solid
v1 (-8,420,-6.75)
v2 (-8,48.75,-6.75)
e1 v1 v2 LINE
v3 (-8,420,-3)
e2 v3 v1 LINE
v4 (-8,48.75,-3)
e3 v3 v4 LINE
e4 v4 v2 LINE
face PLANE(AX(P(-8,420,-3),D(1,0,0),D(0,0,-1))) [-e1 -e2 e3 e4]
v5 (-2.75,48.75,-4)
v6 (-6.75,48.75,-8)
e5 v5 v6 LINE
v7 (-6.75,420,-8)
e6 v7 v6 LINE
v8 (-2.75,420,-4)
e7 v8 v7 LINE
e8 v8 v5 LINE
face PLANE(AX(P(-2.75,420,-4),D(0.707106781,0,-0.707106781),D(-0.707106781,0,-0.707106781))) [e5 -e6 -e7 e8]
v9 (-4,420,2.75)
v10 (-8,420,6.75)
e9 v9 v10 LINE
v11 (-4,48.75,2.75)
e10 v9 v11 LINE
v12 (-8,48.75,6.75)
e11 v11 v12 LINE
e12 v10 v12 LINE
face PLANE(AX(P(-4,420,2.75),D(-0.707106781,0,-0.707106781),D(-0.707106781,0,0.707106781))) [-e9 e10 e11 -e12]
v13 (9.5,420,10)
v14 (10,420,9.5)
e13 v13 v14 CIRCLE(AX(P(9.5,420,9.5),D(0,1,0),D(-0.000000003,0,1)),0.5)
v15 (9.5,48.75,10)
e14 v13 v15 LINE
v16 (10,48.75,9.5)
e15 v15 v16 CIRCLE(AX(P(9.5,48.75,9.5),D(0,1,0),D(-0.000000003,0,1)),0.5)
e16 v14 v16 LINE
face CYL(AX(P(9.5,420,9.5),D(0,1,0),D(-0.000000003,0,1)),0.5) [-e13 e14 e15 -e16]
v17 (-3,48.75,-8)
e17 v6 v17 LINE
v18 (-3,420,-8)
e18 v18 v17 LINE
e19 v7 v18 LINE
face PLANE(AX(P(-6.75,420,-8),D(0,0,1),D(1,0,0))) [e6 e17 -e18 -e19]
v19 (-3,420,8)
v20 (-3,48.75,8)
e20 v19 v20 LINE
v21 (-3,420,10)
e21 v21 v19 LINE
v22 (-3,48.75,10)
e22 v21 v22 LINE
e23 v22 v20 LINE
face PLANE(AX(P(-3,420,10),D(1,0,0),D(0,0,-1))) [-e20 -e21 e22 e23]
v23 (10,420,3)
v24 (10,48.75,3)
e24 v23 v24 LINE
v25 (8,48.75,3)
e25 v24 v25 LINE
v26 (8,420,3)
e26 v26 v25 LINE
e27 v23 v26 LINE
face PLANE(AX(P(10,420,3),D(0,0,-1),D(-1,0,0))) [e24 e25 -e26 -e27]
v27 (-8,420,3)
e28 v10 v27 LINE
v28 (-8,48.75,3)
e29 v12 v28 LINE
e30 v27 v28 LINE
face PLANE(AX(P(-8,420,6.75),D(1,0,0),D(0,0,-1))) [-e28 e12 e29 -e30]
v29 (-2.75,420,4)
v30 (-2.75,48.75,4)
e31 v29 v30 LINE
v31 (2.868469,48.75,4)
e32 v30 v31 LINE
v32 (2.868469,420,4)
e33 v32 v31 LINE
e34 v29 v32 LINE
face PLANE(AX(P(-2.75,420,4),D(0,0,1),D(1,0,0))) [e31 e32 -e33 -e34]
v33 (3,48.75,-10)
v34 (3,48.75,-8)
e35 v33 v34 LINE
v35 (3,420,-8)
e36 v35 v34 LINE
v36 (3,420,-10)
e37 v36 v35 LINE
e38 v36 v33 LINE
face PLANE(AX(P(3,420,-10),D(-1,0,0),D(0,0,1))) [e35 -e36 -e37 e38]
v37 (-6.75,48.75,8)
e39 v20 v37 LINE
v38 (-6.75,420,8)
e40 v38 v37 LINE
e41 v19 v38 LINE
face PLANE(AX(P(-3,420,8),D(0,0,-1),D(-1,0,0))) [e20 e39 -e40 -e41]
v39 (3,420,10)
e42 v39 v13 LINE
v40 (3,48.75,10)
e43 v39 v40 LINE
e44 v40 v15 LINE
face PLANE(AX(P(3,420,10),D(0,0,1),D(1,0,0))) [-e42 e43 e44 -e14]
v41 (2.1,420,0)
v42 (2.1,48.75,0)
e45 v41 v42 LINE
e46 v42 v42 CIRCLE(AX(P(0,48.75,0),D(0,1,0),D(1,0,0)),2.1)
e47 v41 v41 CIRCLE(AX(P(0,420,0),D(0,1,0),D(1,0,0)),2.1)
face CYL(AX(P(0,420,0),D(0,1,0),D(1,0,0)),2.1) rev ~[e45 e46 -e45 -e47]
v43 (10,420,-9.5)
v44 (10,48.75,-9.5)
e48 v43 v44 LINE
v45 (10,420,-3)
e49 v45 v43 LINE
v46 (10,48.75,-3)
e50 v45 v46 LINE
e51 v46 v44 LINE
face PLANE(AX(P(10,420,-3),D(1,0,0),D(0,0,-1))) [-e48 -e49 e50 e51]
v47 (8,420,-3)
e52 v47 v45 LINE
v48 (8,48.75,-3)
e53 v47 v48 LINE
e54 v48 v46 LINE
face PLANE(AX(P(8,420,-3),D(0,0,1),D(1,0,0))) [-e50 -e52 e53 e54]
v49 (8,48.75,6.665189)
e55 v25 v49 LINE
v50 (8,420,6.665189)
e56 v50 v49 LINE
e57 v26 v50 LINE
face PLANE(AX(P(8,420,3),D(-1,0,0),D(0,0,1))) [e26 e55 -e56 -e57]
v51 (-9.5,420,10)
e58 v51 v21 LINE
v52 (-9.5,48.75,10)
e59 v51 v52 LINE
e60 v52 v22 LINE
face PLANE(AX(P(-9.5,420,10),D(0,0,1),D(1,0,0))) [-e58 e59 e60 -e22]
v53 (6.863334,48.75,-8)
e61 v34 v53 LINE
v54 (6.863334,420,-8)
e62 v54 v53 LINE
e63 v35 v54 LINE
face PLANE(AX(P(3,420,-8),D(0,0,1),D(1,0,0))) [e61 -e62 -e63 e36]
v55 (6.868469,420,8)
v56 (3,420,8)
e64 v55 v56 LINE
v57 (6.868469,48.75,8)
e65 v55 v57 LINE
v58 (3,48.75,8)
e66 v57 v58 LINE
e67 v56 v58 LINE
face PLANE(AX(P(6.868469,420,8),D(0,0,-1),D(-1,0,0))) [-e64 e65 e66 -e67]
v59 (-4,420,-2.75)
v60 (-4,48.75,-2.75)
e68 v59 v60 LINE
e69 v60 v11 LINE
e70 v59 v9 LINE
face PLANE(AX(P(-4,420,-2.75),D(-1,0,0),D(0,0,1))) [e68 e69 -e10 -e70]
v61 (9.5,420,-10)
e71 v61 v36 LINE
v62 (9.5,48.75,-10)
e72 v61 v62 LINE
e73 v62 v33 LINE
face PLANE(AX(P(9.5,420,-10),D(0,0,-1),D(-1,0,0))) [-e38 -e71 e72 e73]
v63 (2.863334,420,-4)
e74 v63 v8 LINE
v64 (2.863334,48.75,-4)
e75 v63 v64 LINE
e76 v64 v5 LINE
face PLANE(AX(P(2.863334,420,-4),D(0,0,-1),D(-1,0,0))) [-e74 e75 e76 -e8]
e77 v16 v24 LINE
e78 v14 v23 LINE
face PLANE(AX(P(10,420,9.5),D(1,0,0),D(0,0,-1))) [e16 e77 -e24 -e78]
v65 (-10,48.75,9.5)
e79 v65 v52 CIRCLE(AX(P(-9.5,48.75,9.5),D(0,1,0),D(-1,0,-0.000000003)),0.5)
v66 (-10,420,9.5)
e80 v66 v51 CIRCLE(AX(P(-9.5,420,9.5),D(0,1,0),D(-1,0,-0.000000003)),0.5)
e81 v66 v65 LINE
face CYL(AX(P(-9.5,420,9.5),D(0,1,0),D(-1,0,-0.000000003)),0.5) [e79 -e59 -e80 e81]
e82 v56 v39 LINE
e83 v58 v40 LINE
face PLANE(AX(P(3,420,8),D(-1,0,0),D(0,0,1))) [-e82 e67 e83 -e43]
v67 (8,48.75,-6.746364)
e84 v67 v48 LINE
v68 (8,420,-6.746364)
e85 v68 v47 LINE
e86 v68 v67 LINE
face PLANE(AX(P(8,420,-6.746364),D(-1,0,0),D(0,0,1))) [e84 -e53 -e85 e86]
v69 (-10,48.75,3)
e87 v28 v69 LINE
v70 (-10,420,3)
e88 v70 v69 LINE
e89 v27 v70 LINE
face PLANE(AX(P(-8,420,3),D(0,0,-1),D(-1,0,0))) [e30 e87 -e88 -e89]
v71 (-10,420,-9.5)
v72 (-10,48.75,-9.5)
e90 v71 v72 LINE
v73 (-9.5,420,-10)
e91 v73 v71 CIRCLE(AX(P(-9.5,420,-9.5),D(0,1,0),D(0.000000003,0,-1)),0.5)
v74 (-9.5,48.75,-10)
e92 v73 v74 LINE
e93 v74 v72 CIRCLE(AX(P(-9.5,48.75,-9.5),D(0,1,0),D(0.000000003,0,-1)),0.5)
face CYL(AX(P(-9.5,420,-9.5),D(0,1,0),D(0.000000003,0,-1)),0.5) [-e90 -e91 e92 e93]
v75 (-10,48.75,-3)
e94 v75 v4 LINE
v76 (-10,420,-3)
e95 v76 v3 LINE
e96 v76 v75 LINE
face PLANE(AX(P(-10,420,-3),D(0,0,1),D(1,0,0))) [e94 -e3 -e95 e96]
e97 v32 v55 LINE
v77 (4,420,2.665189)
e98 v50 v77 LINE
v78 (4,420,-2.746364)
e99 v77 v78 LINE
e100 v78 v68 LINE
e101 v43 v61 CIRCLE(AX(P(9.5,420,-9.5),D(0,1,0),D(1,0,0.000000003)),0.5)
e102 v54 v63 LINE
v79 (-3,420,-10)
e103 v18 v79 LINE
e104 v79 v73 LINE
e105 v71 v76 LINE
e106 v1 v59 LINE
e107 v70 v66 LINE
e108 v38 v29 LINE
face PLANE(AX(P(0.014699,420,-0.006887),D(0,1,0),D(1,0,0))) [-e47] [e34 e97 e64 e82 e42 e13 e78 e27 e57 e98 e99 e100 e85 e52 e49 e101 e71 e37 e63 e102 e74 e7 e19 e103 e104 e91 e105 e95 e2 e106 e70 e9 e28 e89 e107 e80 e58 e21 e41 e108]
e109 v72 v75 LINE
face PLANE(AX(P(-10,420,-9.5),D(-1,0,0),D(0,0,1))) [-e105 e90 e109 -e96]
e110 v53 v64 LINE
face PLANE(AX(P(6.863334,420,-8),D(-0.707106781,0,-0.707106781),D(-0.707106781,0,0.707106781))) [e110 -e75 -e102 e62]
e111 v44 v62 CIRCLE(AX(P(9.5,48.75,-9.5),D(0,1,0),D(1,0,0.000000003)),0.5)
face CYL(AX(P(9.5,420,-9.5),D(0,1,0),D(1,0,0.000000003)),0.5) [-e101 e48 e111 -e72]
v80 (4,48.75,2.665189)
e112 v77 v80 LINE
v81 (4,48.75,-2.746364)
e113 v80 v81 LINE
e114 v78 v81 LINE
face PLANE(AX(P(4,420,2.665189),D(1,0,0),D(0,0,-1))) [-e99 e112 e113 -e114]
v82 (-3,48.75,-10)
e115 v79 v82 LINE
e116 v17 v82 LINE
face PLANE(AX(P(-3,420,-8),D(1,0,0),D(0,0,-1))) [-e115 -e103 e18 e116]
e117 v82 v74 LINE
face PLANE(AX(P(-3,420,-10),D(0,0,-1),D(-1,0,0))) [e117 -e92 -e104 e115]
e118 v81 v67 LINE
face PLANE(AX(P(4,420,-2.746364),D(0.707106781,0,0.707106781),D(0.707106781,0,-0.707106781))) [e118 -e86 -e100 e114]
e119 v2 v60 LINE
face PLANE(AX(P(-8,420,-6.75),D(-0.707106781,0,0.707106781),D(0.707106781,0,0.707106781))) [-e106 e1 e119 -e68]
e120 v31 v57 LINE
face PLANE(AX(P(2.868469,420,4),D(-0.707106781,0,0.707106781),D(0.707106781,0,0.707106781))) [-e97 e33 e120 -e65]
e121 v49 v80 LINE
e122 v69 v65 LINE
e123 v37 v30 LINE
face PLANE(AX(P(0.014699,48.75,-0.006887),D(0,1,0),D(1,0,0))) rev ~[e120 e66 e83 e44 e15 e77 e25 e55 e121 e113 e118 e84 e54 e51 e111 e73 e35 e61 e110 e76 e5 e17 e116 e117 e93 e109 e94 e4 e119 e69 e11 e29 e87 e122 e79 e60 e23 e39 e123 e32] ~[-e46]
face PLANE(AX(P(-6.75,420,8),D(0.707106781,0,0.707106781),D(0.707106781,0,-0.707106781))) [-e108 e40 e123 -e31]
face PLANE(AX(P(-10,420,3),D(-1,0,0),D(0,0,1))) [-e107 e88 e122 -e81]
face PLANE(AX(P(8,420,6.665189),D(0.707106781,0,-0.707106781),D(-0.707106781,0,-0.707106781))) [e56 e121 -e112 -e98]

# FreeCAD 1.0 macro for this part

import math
import FreeCAD as App
import Part
import Sketcher
from FreeCAD import Vector

doc = App.newDocument("Part")
body = doc.addObject("PartDesign::Body", "Body")

# Sketch on XZ plane
sketch1 = body.newObject("Sketcher::SketchObject", "Sketch")
sketch1.AttachmentSupport = (doc.getObject("XZ_Plane"), [""])
sketch1.MapMode = "FlatFace"
sketch1.AttachmentOffset = App.Placement(Vector(0, 0, -420), App.Rotation())
sketch1.addGeometry([
    Part.LineSegment(Vector(4, -2.75, 0), Vector(8, -6.75, 0)),  # 0
    Part.LineSegment(Vector(8, -6.75, 0), Vector(8, -3, 0)),  # 1
    Part.LineSegment(Vector(8, -3, 0), Vector(10, -3, 0)),  # 2
    Part.LineSegment(Vector(10, -3, 0), Vector(10, -9.5, 0)),  # 3
    Part.ArcOfCircle(Part.Circle(Vector(9.5, -9.5, 0), Vector(0, 0, 1), 0.5), math.radians(-90), math.radians(0)),  # 4
    Part.LineSegment(Vector(9.5, -10, 0), Vector(3, -10, 0)),  # 5
    Part.LineSegment(Vector(3, -10, 0), Vector(3, -8, 0)),  # 6
    Part.LineSegment(Vector(3, -8, 0), Vector(6.86, -8, 0)),  # 7
    Part.LineSegment(Vector(6.86, -8, 0), Vector(2.86, -4, 0)),  # 8
    Part.LineSegment(Vector(2.86, -4, 0), Vector(-2.75, -4, 0)),  # 9
    Part.LineSegment(Vector(-2.75, -4, 0), Vector(-6.75, -8, 0)),  # 10
    Part.LineSegment(Vector(-6.75, -8, 0), Vector(-3, -8, 0)),  # 11
    Part.LineSegment(Vector(-3, -8, 0), Vector(-3, -10, 0)),  # 12
    Part.LineSegment(Vector(-3, -10, 0), Vector(-9.5, -10, 0)),  # 13
    Part.ArcOfCircle(Part.Circle(Vector(-9.5, -9.5, 0), Vector(0, 0, 1), 0.5), math.radians(180), math.radians(270)),  # 14
    Part.LineSegment(Vector(-10, -9.5, 0), Vector(-10, -3, 0)),  # 15
    Part.LineSegment(Vector(-10, -3, 0), Vector(-8, -3, 0)),  # 16
    Part.LineSegment(Vector(-8, -3, 0), Vector(-8, -6.75, 0)),  # 17
    Part.LineSegment(Vector(-8, -6.75, 0), Vector(-4, -2.75, 0)),  # 18
    Part.LineSegment(Vector(-4, -2.75, 0), Vector(-4, 2.75, 0)),  # 19
    Part.LineSegment(Vector(-4, 2.75, 0), Vector(-8, 6.75, 0)),  # 20
    Part.LineSegment(Vector(-8, 6.75, 0), Vector(-8, 3, 0)),  # 21
    Part.LineSegment(Vector(-8, 3, 0), Vector(-10, 3, 0)),  # 22
    Part.LineSegment(Vector(-10, 3, 0), Vector(-10, 9.5, 0)),  # 23
    Part.ArcOfCircle(Part.Circle(Vector(-9.5, 9.5, 0), Vector(0, 0, 1), 0.5), math.radians(90), math.radians(180)),  # 24
    Part.LineSegment(Vector(-9.5, 10, 0), Vector(-3, 10, 0)),  # 25
    Part.LineSegment(Vector(-3, 10, 0), Vector(-3, 8, 0)),  # 26
    Part.LineSegment(Vector(-3, 8, 0), Vector(-6.75, 8, 0)),  # 27
    Part.LineSegment(Vector(-6.75, 8, 0), Vector(-2.75, 4, 0)),  # 28
    Part.LineSegment(Vector(-2.75, 4, 0), Vector(2.87, 4, 0)),  # 29
    Part.LineSegment(Vector(2.87, 4, 0), Vector(6.87, 8, 0)),  # 30
    Part.LineSegment(Vector(6.87, 8, 0), Vector(3, 8, 0)),  # 31
    Part.LineSegment(Vector(3, 8, 0), Vector(3, 10, 0)),  # 32
    Part.LineSegment(Vector(3, 10, 0), Vector(9.5, 10, 0)),  # 33
    Part.ArcOfCircle(Part.Circle(Vector(9.5, 9.5, 0), Vector(0, 0, 1), 0.5), math.radians(0), math.radians(90)),  # 34
    Part.LineSegment(Vector(10, 9.5, 0), Vector(10, 3, 0)),  # 35
    Part.LineSegment(Vector(10, 3, 0), Vector(8, 3, 0)),  # 36
    Part.LineSegment(Vector(8, 3, 0), Vector(8, 6.67, 0)),  # 37
    Part.LineSegment(Vector(8, 6.67, 0), Vector(4, 2.67, 0)),  # 38
    Part.LineSegment(Vector(4, 2.67, 0), Vector(4, -2.75, 0)),  # 39
    Part.Circle(Vector(0, 0, 0), Vector(0, 0, 1), 2.1),  # 40
], False)
sketch1.addConstraint([
    Sketcher.Constraint("Coincident", 0, 2, 1, 1),
    Sketcher.Constraint("Coincident", 1, 2, 2, 1),
    Sketcher.Constraint("Coincident", 2, 2, 3, 1),
    Sketcher.Constraint("Tangent", 3, 2, 4, 2),
    Sketcher.Constraint("Tangent", 4, 1, 5, 1),
    Sketcher.Constraint("Coincident", 5, 2, 6, 1),
    Sketcher.Constraint("Coincident", 6, 2, 7, 1),
    Sketcher.Constraint("Coincident", 7, 2, 8, 1),
    Sketcher.Constraint("Coincident", 8, 2, 9, 1),
    Sketcher.Constraint("Coincident", 9, 2, 10, 1),
    Sketcher.Constraint("Coincident", 10, 2, 11, 1),
    Sketcher.Constraint("Coincident", 11, 2, 12, 1),
    Sketcher.Constraint("Coincident", 12, 2, 13, 1),
    Sketcher.Constraint("Tangent", 13, 2, 14, 2),
    Sketcher.Constraint("Tangent", 14, 1, 15, 1),
    Sketcher.Constraint("Coincident", 15, 2, 16, 1),
    Sketcher.Constraint("Coincident", 16, 2, 17, 1),
    Sketcher.Constraint("Coincident", 17, 2, 18, 1),
    Sketcher.Constraint("Coincident", 18, 2, 19, 1),
    Sketcher.Constraint("Coincident", 19, 2, 20, 1),
    Sketcher.Constraint("Coincident", 20, 2, 21, 1),
    Sketcher.Constraint("Coincident", 21, 2, 22, 1),
    Sketcher.Constraint("Coincident", 22, 2, 23, 1),
    Sketcher.Constraint("Tangent", 23, 2, 24, 2),
    Sketcher.Constraint("Tangent", 24, 1, 25, 1),
    Sketcher.Constraint("Coincident", 25, 2, 26, 1),
    Sketcher.Constraint("Coincident", 26, 2, 27, 1),
    Sketcher.Constraint("Coincident", 27, 2, 28, 1),
    Sketcher.Constraint("Coincident", 28, 2, 29, 1),
    Sketcher.Constraint("Coincident", 29, 2, 30, 1),
    Sketcher.Constraint("Coincident", 30, 2, 31, 1),
    Sketcher.Constraint("Coincident", 31, 2, 32, 1),
    Sketcher.Constraint("Coincident", 32, 2, 33, 1),
    Sketcher.Constraint("Tangent", 33, 2, 34, 2),
    Sketcher.Constraint("Tangent", 34, 1, 35, 1),
    Sketcher.Constraint("Coincident", 35, 2, 36, 1),
    Sketcher.Constraint("Coincident", 36, 2, 37, 1),
    Sketcher.Constraint("Coincident", 37, 2, 38, 1),
    Sketcher.Constraint("Coincident", 38, 2, 39, 1),
    Sketcher.Constraint("Coincident", 39, 2, 0, 1),
    Sketcher.Constraint("Vertical", 1),
    Sketcher.Constraint("Horizontal", 2),
    Sketcher.Constraint("Vertical", 3),
    Sketcher.Constraint("Horizontal", 5),
    Sketcher.Constraint("Vertical", 6),
    Sketcher.Constraint("Horizontal", 7),
    Sketcher.Constraint("Horizontal", 9),
    Sketcher.Constraint("Horizontal", 11),
    Sketcher.Constraint("Vertical", 12),
    Sketcher.Constraint("Horizontal", 13),
    Sketcher.Constraint("Vertical", 15),
    Sketcher.Constraint("Horizontal", 16),
    Sketcher.Constraint("Vertical", 17),
    Sketcher.Constraint("Vertical", 19),
    Sketcher.Constraint("Vertical", 21),
    Sketcher.Constraint("Horizontal", 22),
    Sketcher.Constraint("Vertical", 23),
    Sketcher.Constraint("Horizontal", 25),
    Sketcher.Constraint("Vertical", 26),
    Sketcher.Constraint("Horizontal", 27),
    Sketcher.Constraint("Horizontal", 29),
    Sketcher.Constraint("Horizontal", 31),
    Sketcher.Constraint("Vertical", 32),
    Sketcher.Constraint("Horizontal", 33),
    Sketcher.Constraint("Vertical", 35),
    Sketcher.Constraint("Horizontal", 36),
    Sketcher.Constraint("Vertical", 37),
    Sketcher.Constraint("Vertical", 39),
    Sketcher.Constraint("Coincident", 40, 3, -1, 1),
    Sketcher.Constraint("Equal", 4, 14),
    Sketcher.Constraint("Equal", 14, 24),
    Sketcher.Constraint("Equal", 24, 34),
    Sketcher.Constraint("Symmetric", 4, 3, 24, 3, -1, 1),
    Sketcher.Constraint("Symmetric", 14, 3, 34, 3, -1, 1),
    Sketcher.Constraint("Symmetric", 1, 2, 21, 2, -1, 1),
    Sketcher.Constraint("Symmetric", 6, 2, 26, 2, -1, 1),
    Sketcher.Constraint("Symmetric", 11, 2, 31, 2, -1, 1),
    Sketcher.Constraint("Symmetric", 16, 2, 36, 2, -1, 1),
    Sketcher.Constraint("Symmetric", 4, 3, 14, 3, -2),
    Sketcher.Constraint("Symmetric", 6, 2, 11, 2, -2),
    Sketcher.Constraint("Symmetric", 1, 2, 16, 2, -2),
    Sketcher.Constraint("Symmetric", 9, 2, 28, 2, -1),
    Sketcher.Constraint("Parallel", 0, 8),
    Sketcher.Constraint("Perpendicular", 8, 10),
    Sketcher.Constraint("Parallel", 10, 18),
    Sketcher.Constraint("Perpendicular", 18, 20),
    Sketcher.Constraint("Parallel", 20, 28),
    Sketcher.Constraint("Perpendicular", 28, 30),
    Sketcher.Constraint("Parallel", 30, 38),
    Sketcher.Constraint("Vertical", 10, 2, 27, 2),
    Sketcher.Constraint("Equal", 33, 3),
    Sketcher.Constraint("Equal", 36, 6),
    Sketcher.Constraint("Equal", 27, 17),
    Sketcher.Constraint("Equal", 17, 21),
    Sketcher.Constraint("Equal", 0, 8),
    Sketcher.Constraint("Equal", 10, 18),
    Sketcher.Constraint("Diameter", 40, 4.2),
    Sketcher.Constraint("Radius", 4, 0.5),
    Sketcher.Constraint("DistanceX", 2, 1, 2, 2, 2.0),
    Sketcher.Constraint("DistanceX", 5, 2, 5, 1, 6.5),
    Sketcher.Constraint("DistanceY", 19, 1, 19, 2, 5.5),
    Sketcher.Constraint("DistanceX", -1, 1, 0, 2, 8.0),
    Sketcher.Constraint("DistanceY", 1, 2, -1, 1, 3.0),
    Sketcher.Constraint("DistanceY", 8, 2, -1, 1, 4.0),
    Sketcher.Constraint("DistanceX", 29, 1, 29, 2, 5.618469),
    Sketcher.Constraint("DistanceY", 37, 1, 37, 2, 3.665189),
    Sketcher.Constraint("DistanceX", 7, 1, 7, 2, 3.863334),
    Sketcher.Constraint("DistanceY", 1, 1, 1, 2, 3.746364),
])
pad1 = body.newObject("PartDesign::Pad", "Pad")
pad1.Profile = sketch1
pad1.Length = 371.25

doc.recompute()
